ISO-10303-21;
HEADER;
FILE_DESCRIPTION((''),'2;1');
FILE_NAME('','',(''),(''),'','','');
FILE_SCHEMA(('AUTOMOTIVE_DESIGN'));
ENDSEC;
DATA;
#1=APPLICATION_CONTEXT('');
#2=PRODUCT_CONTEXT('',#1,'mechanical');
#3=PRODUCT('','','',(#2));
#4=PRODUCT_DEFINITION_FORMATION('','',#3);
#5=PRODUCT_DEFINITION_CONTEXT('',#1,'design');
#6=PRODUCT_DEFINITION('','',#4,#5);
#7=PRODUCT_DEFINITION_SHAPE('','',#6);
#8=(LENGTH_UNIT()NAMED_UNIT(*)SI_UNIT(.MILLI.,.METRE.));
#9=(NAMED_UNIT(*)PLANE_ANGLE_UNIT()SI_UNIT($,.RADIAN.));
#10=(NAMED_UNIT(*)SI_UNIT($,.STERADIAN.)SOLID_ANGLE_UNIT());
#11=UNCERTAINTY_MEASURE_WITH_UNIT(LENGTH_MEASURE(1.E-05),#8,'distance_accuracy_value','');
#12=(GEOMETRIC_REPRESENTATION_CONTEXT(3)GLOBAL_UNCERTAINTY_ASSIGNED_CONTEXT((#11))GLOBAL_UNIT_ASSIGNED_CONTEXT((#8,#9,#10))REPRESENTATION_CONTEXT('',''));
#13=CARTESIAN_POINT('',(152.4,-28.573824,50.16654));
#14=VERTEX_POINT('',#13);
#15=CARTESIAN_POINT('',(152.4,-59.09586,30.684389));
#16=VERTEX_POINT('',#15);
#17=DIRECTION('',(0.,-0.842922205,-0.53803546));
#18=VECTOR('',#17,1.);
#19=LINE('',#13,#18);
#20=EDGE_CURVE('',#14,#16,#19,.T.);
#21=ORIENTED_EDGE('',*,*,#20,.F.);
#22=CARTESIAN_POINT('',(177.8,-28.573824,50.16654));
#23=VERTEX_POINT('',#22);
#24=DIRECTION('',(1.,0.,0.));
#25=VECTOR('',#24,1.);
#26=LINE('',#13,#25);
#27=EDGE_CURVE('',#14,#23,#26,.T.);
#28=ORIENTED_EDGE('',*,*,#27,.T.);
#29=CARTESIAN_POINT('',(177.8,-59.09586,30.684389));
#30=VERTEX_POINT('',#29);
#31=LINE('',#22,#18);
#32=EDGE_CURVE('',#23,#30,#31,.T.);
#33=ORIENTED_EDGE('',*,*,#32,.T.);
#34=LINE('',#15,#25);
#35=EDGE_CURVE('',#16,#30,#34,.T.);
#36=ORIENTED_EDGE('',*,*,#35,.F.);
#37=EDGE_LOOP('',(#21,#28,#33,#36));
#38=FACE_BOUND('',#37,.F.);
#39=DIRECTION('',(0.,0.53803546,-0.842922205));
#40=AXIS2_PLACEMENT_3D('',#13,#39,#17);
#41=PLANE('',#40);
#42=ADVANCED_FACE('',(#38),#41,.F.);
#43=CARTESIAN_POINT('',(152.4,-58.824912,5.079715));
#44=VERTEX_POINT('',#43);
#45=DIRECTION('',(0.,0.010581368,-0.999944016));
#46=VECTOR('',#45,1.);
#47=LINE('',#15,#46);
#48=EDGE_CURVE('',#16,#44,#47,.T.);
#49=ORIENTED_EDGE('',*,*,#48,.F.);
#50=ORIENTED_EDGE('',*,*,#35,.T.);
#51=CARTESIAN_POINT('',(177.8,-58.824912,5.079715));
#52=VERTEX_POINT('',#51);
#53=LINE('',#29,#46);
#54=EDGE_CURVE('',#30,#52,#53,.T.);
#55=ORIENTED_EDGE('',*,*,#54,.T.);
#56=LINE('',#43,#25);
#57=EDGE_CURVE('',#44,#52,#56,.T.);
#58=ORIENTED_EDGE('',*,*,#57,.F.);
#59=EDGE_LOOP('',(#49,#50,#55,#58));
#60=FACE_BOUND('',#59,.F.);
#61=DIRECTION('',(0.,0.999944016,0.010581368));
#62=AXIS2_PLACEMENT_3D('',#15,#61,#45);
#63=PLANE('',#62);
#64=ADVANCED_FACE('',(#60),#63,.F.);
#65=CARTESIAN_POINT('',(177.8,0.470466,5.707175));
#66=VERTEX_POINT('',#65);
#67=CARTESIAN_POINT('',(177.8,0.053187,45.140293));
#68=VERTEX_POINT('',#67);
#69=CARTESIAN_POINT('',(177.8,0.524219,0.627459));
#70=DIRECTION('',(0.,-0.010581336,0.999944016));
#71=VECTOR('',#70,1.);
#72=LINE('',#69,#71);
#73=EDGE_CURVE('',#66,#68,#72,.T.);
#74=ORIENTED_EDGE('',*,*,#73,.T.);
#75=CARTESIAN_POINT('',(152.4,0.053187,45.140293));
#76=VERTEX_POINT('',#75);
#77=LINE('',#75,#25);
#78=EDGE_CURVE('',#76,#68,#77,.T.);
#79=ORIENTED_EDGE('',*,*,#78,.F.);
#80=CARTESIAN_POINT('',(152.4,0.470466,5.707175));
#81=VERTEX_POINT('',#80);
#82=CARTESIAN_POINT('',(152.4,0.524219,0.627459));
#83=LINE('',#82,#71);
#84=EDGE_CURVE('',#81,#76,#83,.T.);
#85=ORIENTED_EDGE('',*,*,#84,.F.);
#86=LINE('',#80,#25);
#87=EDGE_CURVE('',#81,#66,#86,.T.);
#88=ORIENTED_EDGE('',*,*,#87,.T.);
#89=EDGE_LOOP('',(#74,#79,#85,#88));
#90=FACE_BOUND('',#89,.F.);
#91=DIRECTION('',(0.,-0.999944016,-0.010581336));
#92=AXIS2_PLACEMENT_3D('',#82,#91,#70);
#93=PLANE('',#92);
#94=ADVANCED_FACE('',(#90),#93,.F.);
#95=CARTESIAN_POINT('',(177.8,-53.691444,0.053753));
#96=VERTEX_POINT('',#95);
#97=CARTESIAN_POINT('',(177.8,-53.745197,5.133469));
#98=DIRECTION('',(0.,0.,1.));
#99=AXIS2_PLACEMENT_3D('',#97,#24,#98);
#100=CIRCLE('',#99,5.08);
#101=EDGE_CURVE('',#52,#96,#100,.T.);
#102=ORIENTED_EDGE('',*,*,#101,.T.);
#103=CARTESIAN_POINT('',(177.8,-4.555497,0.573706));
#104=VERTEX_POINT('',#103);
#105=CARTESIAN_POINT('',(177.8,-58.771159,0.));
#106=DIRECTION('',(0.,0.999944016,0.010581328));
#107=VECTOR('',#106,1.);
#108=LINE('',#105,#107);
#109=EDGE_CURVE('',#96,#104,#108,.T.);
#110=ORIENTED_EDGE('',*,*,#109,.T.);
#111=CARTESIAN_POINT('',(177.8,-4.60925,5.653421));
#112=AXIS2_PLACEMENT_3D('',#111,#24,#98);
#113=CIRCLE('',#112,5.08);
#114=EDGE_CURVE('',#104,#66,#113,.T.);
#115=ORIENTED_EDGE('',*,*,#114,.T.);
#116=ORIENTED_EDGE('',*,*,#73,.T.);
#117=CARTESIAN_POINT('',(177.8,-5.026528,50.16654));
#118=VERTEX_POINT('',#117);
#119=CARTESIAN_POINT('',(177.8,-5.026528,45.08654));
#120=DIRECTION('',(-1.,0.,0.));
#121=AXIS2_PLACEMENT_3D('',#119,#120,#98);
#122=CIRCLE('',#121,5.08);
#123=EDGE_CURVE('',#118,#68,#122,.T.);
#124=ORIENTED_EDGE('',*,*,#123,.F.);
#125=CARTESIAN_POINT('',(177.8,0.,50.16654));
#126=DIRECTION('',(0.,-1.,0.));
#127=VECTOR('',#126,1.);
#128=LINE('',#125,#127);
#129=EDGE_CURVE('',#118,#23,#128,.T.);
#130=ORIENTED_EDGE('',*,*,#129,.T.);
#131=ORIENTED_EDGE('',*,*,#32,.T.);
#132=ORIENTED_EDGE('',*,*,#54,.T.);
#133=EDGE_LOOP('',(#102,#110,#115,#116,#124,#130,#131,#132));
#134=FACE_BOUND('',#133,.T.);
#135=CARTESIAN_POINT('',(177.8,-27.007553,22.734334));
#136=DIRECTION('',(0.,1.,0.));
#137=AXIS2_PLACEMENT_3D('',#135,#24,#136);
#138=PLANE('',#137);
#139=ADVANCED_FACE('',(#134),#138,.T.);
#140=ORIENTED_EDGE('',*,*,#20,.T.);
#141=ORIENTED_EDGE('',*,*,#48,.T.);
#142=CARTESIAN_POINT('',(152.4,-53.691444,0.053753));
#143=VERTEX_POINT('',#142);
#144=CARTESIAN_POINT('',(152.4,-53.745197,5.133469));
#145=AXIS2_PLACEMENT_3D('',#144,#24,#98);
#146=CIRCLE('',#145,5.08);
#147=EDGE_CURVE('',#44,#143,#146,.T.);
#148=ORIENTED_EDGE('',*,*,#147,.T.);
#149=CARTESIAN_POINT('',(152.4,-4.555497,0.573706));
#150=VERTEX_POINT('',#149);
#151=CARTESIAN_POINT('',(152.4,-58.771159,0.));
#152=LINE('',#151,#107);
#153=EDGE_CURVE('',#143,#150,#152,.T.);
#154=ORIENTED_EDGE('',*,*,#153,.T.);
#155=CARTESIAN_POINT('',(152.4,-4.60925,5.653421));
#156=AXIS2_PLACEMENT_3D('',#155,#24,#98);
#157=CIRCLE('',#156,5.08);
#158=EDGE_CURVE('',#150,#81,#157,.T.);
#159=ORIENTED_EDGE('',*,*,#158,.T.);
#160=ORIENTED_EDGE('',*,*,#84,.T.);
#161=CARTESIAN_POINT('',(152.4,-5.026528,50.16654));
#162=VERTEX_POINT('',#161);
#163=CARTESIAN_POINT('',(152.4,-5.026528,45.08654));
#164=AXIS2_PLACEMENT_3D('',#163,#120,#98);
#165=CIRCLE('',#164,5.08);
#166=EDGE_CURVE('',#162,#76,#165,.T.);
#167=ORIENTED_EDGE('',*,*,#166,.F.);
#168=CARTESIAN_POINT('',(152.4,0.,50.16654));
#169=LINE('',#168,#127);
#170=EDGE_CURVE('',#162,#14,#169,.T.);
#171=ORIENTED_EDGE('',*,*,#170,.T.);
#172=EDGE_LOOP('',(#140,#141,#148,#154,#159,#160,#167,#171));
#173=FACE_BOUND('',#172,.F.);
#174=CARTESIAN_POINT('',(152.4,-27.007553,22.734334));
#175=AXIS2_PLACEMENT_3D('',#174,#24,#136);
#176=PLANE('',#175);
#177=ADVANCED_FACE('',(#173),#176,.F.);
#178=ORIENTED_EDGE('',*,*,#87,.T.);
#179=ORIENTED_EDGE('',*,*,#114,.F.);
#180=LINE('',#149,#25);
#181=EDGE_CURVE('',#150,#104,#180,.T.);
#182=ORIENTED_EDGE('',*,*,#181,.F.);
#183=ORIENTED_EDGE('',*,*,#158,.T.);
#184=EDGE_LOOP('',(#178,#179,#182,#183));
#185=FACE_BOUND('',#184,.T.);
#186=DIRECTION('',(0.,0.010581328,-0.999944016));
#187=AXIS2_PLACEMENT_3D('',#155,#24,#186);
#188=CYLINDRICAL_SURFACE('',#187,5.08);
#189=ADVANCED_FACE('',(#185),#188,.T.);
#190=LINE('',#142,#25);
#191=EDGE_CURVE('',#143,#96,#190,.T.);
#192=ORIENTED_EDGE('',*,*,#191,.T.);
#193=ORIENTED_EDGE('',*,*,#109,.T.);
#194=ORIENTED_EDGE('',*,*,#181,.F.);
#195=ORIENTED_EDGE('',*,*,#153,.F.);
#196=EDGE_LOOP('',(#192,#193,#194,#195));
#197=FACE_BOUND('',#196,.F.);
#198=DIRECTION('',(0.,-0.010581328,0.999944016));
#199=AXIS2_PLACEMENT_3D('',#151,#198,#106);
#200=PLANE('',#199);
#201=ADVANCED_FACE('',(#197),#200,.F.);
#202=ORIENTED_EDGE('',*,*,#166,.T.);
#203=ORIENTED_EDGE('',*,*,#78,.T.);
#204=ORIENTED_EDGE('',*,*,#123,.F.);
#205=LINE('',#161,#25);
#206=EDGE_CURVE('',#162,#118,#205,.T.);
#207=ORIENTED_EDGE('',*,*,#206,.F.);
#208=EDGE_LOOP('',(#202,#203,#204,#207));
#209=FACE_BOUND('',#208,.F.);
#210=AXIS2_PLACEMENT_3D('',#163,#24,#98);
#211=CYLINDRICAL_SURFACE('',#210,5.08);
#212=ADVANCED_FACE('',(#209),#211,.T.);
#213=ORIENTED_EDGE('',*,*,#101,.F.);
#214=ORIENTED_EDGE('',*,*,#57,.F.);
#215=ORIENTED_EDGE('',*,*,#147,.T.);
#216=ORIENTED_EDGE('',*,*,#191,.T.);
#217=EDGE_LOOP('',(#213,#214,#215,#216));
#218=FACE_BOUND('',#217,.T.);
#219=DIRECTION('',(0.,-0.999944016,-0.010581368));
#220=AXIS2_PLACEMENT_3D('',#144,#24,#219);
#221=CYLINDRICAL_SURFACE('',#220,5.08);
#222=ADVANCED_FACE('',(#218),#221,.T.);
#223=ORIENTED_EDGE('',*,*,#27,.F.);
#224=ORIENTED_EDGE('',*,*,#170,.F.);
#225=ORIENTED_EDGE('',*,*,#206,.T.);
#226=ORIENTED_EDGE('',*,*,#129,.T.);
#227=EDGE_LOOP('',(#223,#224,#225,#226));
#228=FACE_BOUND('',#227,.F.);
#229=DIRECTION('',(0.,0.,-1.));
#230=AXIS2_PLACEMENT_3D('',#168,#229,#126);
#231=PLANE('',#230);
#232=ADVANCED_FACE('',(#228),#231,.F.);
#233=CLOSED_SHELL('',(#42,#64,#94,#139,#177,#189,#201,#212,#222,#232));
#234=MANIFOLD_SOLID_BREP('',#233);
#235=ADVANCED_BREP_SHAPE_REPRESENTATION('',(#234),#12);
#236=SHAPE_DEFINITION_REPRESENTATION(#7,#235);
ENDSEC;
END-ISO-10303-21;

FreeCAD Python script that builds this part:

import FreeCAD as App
import Part
import Sketcher
Q = App.Units.Quantity


def edges_at(feature, points):
    """Names of the edges that pass closest to the given points."""
    edges = feature.Shape.Edges
    near = lambda p: min(range(len(edges)), key=lambda i: edges[i].distToShape(Part.Vertex(*p))[0])
    return sorted({f"Edge{near(p) + 1}" for p in points})

doc = App.newDocument("Part")
body = doc.addObject("PartDesign::Body", "Body")

sketch1 = body.newObject("Sketcher::SketchObject", "Sketch")
sketch1.AttachmentSupport = (doc.getObject("YZ_Plane"), [""])
sketch1.MapMode = "FlatFace"
sketch1.AttachmentOffset = App.Placement(App.Vector(0, 0, 6 * 25.4), App.Rotation())
sketch1.addGeometry([
    Part.LineSegment(App.Vector(-29, 50, 0), App.Vector(-59, 31, 0)),
    Part.LineSegment(App.Vector(-59, 31, 0), App.Vector(-59, 0, 0)),
    Part.LineSegment(App.Vector(-59, 0, 0), App.Vector(1, 1, 0)),
    Part.LineSegment(App.Vector(1, 1, 0), App.Vector(0, 50, 0)),
    Part.LineSegment(App.Vector(0, 50, 0), App.Vector(-29, 50, 0)),
], False)
sketch1.addConstraint([
    Sketcher.Constraint("Coincident", 0, 2, 1, 1),
    Sketcher.Constraint("Coincident", 1, 2, 2, 1),
    Sketcher.Constraint("Coincident", 2, 2, 3, 1),
    Sketcher.Constraint("Coincident", 3, 2, 4, 1),
    Sketcher.Constraint("Coincident", 4, 2, 0, 1),
    Sketcher.Constraint("Horizontal", 4),
    Sketcher.Constraint("PointOnObject", 1, 2, -1),
    Sketcher.Constraint("PointOnObject", 3, 2, -2),
    Sketcher.Constraint("Perpendicular", 1, 2),
    Sketcher.Constraint("Perpendicular", 2, 3),
    Sketcher.Constraint("Angle", 0, Q("-147.449996 deg")),
    Sketcher.Constraint("DistanceX", 0, 2, 1, 2, 0.324701),
    Sketcher.Constraint("Distance", 0, 36.20979),
    Sketcher.Constraint("DistanceX", 4, 2, 4, 1, 28.573824),
    Sketcher.Constraint("DistanceY", -1, 1, 0, 2, 30.684389),
])
pad1 = body.newObject("PartDesign::Pad", "Pad")
pad1.Profile = sketch1
pad1.Length = Q("1 in")
doc.recompute()

fillet = body.newObject("PartDesign::Fillet", "Fillet")
fillet.Base = (pad1, edges_at(pad1, [(165.1, -58.771, 0)]))
fillet.Radius = Q("0.2 in")
doc.recompute()

fillet2 = body.newObject("PartDesign::Fillet", "Fillet001")
fillet2.Base = (fillet, edges_at(fillet, [(165.1, 0.524, 0.627), (165.1, 0, 50.167)]))
fillet2.Radius = Q("0.2 in")

doc.recompute()
